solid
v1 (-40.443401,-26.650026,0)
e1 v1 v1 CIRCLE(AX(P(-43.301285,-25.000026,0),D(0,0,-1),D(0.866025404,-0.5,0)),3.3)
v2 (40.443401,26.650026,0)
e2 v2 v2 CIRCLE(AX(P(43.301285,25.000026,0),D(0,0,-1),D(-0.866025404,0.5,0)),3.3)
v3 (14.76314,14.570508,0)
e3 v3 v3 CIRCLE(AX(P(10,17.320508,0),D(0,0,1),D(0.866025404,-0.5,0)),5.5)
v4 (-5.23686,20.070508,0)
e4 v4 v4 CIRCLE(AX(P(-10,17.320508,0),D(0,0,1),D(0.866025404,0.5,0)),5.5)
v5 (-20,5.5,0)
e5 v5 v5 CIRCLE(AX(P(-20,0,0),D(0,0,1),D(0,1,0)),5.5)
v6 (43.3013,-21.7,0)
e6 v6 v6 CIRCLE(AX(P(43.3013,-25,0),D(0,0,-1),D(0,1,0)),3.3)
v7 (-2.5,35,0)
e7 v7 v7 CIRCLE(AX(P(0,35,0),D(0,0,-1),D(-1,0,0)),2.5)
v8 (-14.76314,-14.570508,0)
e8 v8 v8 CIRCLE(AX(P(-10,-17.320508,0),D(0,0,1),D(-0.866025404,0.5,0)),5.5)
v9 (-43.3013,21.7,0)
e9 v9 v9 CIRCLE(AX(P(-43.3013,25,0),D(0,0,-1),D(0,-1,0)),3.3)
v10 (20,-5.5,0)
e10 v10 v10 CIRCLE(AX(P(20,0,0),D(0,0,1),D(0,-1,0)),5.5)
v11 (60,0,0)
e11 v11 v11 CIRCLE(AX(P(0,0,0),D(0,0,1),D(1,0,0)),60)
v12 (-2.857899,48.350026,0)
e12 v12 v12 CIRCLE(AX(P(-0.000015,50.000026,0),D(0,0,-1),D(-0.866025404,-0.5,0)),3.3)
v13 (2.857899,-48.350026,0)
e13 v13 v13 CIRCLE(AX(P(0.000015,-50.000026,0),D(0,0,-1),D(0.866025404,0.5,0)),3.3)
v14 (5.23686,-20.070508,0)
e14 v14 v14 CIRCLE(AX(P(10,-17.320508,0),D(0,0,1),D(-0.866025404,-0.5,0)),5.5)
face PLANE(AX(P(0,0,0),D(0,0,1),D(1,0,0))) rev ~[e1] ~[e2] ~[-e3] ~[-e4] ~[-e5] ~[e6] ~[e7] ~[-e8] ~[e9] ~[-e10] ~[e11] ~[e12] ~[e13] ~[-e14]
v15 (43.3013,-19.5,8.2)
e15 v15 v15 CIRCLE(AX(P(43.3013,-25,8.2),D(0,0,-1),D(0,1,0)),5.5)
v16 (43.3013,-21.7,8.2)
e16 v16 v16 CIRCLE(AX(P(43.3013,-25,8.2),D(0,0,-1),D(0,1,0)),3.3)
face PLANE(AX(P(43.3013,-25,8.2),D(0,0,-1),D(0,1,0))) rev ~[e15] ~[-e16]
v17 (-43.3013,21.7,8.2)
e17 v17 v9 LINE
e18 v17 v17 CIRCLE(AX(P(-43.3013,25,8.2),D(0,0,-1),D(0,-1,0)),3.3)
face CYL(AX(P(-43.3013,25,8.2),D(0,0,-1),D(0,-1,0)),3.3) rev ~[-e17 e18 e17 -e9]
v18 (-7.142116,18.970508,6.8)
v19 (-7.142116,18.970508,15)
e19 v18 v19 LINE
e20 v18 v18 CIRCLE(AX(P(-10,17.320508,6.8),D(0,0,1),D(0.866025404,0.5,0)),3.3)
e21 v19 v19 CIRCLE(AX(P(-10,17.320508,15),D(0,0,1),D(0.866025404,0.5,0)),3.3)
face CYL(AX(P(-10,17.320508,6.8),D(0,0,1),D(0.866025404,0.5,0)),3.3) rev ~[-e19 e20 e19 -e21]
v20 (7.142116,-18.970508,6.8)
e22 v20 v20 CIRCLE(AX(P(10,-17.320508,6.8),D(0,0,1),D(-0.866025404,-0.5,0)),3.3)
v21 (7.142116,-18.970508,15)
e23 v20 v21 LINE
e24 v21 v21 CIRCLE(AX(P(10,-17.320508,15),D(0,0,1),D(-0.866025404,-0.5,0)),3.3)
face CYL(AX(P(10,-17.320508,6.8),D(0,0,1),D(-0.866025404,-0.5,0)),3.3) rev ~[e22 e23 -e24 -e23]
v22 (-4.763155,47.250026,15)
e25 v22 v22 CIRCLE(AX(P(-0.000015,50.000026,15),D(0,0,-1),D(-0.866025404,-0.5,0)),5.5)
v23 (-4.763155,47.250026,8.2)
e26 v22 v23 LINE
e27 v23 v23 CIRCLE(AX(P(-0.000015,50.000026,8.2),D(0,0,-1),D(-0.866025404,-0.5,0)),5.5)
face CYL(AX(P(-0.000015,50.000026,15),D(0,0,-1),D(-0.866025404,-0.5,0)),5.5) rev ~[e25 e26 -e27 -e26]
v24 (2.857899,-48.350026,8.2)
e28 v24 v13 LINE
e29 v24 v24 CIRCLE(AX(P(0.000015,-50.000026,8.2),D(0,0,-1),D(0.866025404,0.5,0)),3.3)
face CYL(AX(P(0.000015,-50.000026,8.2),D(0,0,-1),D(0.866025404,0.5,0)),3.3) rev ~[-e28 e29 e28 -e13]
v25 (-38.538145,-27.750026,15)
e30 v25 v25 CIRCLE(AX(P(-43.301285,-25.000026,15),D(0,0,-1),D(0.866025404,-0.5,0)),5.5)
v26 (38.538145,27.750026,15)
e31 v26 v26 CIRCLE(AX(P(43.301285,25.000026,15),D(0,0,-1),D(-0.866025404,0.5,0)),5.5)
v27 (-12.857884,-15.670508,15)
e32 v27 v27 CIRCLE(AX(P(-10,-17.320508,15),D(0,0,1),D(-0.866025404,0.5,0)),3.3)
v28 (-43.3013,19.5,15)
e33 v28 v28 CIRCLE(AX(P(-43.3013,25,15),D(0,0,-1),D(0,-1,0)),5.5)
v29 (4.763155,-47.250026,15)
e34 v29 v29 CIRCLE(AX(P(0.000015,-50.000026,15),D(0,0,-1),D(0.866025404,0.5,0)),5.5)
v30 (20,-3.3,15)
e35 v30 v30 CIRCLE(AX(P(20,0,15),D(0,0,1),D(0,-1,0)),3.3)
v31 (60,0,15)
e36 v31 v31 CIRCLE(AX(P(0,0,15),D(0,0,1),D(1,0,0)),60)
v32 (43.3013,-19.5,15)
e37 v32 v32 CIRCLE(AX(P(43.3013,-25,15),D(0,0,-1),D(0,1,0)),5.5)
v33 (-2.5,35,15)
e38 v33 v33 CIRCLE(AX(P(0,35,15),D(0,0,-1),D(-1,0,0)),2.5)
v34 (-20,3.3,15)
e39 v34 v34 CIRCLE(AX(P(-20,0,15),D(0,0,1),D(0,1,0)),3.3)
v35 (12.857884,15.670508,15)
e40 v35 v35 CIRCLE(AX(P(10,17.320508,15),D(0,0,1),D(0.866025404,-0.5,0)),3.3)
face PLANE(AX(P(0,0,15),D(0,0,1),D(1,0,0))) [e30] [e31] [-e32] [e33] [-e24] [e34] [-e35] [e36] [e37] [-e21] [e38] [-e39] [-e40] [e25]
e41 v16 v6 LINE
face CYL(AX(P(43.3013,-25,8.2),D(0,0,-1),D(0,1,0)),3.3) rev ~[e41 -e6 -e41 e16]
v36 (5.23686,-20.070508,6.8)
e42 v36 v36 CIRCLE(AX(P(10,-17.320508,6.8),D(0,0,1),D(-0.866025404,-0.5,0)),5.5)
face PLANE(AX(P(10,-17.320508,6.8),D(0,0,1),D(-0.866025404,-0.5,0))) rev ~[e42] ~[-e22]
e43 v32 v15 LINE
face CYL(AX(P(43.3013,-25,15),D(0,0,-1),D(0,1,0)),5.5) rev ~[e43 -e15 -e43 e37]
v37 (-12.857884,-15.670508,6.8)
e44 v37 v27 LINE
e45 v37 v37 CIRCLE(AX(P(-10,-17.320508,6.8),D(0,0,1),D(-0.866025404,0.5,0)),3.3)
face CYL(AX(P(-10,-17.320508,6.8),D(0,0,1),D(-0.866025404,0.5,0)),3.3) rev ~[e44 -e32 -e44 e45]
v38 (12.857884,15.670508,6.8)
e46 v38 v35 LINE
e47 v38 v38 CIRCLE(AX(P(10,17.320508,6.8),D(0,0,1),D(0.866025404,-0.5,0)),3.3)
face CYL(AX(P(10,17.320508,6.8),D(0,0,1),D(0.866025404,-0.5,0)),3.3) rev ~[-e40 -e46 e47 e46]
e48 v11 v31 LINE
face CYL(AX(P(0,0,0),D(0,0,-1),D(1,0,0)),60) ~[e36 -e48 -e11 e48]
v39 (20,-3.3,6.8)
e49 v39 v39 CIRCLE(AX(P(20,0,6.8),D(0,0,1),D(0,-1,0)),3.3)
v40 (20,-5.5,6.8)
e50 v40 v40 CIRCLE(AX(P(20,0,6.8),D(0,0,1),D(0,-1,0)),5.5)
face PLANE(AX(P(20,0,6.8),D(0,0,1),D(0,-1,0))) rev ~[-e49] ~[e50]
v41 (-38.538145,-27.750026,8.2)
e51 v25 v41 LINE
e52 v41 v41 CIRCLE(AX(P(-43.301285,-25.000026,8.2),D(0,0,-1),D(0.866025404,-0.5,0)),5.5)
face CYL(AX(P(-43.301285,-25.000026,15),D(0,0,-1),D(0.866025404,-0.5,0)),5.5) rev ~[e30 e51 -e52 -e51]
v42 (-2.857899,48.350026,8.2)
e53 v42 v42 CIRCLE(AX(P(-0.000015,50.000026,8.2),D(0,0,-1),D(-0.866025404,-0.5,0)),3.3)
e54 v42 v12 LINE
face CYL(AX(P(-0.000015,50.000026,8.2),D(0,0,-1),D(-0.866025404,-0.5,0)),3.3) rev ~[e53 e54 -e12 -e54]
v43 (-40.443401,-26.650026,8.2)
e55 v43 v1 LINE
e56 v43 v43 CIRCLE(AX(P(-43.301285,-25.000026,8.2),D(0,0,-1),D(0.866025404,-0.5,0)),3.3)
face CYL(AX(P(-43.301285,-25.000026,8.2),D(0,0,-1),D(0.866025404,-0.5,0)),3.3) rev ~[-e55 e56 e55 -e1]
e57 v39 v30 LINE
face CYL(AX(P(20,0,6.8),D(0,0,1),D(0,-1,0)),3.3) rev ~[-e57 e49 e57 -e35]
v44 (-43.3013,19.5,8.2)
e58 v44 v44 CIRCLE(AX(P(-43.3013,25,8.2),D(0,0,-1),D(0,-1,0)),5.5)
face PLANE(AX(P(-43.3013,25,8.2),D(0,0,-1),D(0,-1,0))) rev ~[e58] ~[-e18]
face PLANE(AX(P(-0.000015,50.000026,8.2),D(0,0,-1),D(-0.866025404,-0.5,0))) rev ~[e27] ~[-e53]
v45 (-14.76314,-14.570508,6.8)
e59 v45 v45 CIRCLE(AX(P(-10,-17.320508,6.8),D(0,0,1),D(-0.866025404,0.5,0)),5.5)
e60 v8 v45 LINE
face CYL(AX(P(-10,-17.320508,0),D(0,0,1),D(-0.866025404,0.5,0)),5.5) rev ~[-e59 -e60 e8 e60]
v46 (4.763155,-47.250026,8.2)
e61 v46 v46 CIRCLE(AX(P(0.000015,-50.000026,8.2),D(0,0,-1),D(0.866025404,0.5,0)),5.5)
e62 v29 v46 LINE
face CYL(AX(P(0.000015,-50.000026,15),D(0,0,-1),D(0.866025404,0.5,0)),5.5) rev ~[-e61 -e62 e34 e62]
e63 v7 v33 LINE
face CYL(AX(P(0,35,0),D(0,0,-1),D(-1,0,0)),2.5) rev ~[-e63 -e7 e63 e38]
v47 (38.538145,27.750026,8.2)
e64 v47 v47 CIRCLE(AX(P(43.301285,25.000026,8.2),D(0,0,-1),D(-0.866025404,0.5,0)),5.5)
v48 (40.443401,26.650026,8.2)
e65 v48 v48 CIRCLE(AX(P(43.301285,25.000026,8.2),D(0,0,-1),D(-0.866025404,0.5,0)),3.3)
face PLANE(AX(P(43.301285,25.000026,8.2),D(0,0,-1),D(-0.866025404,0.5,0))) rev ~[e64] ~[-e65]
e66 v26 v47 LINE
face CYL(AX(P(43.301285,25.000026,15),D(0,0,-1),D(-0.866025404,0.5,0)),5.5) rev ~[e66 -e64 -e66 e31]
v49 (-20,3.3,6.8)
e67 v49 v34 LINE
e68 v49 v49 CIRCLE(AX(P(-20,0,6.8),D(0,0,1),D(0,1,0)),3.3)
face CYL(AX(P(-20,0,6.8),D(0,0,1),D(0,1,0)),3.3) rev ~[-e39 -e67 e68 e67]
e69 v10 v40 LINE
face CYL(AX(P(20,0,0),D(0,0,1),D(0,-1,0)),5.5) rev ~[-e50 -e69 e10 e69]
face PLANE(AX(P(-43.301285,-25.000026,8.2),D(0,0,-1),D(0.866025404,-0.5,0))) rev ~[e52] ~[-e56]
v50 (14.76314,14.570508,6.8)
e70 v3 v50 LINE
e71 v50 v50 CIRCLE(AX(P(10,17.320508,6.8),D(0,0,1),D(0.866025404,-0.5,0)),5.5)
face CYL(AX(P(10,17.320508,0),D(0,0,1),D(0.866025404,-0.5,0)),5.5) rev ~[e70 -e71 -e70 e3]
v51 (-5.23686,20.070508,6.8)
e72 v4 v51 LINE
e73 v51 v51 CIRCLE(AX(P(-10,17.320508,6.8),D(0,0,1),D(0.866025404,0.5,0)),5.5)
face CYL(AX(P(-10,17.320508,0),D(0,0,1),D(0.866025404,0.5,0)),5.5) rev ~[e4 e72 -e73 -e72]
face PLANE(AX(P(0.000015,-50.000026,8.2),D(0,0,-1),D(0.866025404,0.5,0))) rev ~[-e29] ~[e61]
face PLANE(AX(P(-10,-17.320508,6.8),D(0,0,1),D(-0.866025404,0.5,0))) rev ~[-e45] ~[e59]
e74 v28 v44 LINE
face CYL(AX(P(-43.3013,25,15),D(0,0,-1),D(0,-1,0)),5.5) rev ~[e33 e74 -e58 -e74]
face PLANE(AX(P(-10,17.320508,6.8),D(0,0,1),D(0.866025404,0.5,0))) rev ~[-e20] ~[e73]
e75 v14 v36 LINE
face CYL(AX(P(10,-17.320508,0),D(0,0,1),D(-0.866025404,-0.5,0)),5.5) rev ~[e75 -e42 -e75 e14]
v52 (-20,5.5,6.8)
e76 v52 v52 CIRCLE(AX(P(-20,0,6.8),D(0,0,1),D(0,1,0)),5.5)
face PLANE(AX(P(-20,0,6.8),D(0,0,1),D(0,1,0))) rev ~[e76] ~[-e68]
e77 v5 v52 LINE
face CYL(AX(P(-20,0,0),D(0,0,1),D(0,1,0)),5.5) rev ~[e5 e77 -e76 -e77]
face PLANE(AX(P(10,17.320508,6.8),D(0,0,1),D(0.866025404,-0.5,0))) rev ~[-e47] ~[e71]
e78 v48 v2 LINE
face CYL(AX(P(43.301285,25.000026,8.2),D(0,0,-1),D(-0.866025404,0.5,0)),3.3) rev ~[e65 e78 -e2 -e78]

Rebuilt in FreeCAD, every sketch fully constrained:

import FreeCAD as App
import Part
import Sketcher

V = App.Vector

doc = App.newDocument("Part")
body = doc.addObject("PartDesign::Body", "Body")

# Sketch on XY plane
sketch1 = body.newObject("Sketcher::SketchObject", "Sketch")
sketch1.AttachmentSupport = (doc.getObject("XY_Plane"), [""])
sketch1.MapMode = "FlatFace"
sketch1.addGeometry(Part.Circle(V(0, 0, 0), V(0, 0, 1), 60), False)
sketch1.addConstraint([
    Sketcher.Constraint("Coincident", 0, 3, -1, 1),
    Sketcher.Constraint("Diameter", 0, 120.0),
])
pad1 = body.newObject("PartDesign::Pad", "Pad")
pad1.Profile = sketch1
pad1.Length = 15

# Sketch on XY plane
sketch2 = body.newObject("Sketcher::SketchObject", "Sketch001")
sketch2.AttachmentSupport = (doc.getObject("XY_Plane"), [""])
sketch2.MapMode = "FlatFace"
sketch2.addGeometry(Part.Circle(V(-20, 0, 0), V(0, 0, 1), 3.3), False)
sketch2.addConstraint([
    Sketcher.Constraint("PointOnObject", 0, 3, -1),
    Sketcher.Constraint("Diameter", 0, 6.6),
    Sketcher.Constraint("DistanceX", 0, 3, -1, 1, 20.0),
])
doc.recompute()
hole = body.newObject("PartDesign::Hole", "Hole")
hole.Profile = sketch2
hole.ThreadType = "None"
hole.Diameter = 6.6
hole.DepthType = "ThroughAll"
hole.HoleCutType = "Counterbore"
hole.HoleCutDiameter = 11
hole.HoleCutDepth = 6.8
hole.Reversed = True
doc.recompute()

polarpattern = body.newObject("PartDesign::PolarPattern", "PolarPattern")
polarpattern.Originals = [hole]
polarpattern.Axis = (doc.getObject("Z_Axis"), [""])
polarpattern.Angle = 360
polarpattern.Occurrences = 6
body.Tip = polarpattern

# Sketch on XY plane
sketch3 = body.newObject("Sketcher::SketchObject", "Sketch002")
sketch3.AttachmentSupport = (doc.getObject("XY_Plane"), [""])
sketch3.MapMode = "FlatFace"
sketch3.AttachmentOffset = App.Placement(V(0, 0, 15), App.Rotation())
sketch3.addGeometry(Part.Circle(V(-43.3, 25, 0), V(0, 0, 1), 3.3), False)
sketch3.addConstraint([
    Sketcher.Constraint("Diameter", 0, 6.6),
    Sketcher.Constraint("DistanceY", -1, 1, 0, 3, 25.0),
    Sketcher.Constraint("DistanceX", 0, 3, -1, 1, 43.3013),
])
doc.recompute()
hole2 = body.newObject("PartDesign::Hole", "Hole001")
hole2.Profile = sketch3
hole2.ThreadType = "None"
hole2.Diameter = 6.6
hole2.DepthType = "Dimension"
hole2.Depth = 17.1
hole2.DrillPoint = "Flat"
hole2.HoleCutType = "Counterbore"
hole2.HoleCutDiameter = 11
hole2.HoleCutDepth = 6.8
doc.recompute()

polarpattern2 = body.newObject("PartDesign::PolarPattern", "PolarPattern001")
polarpattern2.Originals = [hole2]
polarpattern2.Axis = (doc.getObject("Z_Axis"), [""])
polarpattern2.Angle = 360
polarpattern2.Occurrences = 6
body.Tip = polarpattern2

# Sketch on XY plane
sketch4 = body.newObject("Sketcher::SketchObject", "Sketch003")
sketch4.AttachmentSupport = (doc.getObject("XY_Plane"), [""])
sketch4.MapMode = "FlatFace"
sketch4.addGeometry(Part.Circle(V(0, 35, 0), V(0, 0, 1), 2.5), False)
sketch4.addConstraint([
    Sketcher.Constraint("PointOnObject", 0, 3, -2),
    Sketcher.Constraint("Diameter", 0, 5.0),
    Sketcher.Constraint("DistanceY", -1, 1, 0, 3, 35.0),
])
pocket1 = body.newObject("PartDesign::Pocket", "Pocket")
pocket1.Profile = sketch4
pocket1.Type = "UpToFirst"
pocket1.Reversed = True

doc.recompute()
